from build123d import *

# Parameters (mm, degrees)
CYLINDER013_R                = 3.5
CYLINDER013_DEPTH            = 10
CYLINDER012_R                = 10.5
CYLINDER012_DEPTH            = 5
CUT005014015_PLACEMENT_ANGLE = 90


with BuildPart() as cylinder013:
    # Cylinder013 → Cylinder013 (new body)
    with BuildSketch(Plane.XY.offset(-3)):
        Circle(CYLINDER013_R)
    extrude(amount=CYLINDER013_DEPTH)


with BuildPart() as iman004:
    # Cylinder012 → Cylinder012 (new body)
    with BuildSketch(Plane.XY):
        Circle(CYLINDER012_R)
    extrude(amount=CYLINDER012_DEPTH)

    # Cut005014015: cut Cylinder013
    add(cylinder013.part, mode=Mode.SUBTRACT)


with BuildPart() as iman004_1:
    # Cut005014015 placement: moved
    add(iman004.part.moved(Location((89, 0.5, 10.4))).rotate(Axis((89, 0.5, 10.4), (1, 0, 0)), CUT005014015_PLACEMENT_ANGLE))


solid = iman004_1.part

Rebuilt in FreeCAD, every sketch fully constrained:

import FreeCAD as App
import Part
import Sketcher
from FreeCAD import Vector

doc = App.newDocument("Part")
body = doc.addObject("PartDesign::Body", "Body")

# Sketch on XY plane
sketch1 = body.newObject("Sketcher::SketchObject", "Sketch")
sketch1.AttachmentSupport = (doc.getObject("XY_Plane"), [""])
sketch1.MapMode = "FlatFace"
sketch1.AttachmentOffset = App.Placement(Vector(0, 0, -3), App.Rotation())
sketch1.addGeometry(Part.Circle(Vector(0, 0, 0), Vector(0, 0, 1), 3.5), False)
sketch1.addConstraint([
    Sketcher.Constraint("Coincident", 0, 3, -1, 1),
    Sketcher.Constraint("Diameter", 0, 7.0),
])
pad1 = body.newObject("PartDesign::Pad", "Pad")
pad1.Profile = sketch1
pad1.Length = 10
body2 = doc.addObject("PartDesign::Body", "Body001")

# Sketch on XY plane
sketch2 = body2.newObject("Sketcher::SketchObject", "Sketch001")
sketch2.AttachmentSupport = (doc.getObject("XY_Plane001"), [""])
sketch2.MapMode = "FlatFace"
sketch2.addGeometry(Part.Circle(Vector(0, 0, 0), Vector(0, 0, 1), 10.5), False)
sketch2.addConstraint([
    Sketcher.Constraint("Coincident", 0, 3, -1, 1),
    Sketcher.Constraint("Diameter", 0, 21.0),
])
pad2 = body2.newObject("PartDesign::Pad", "Pad001")
pad2.Profile = sketch2
pad2.Length = 5
doc.recompute()

boolean = body2.newObject("PartDesign::Boolean", "Boolean")
boolean.Type = "Cut"
boolean.addObjects([body])
body3 = doc.addObject("PartDesign::Body", "Body002")
doc.recompute()

body2.Placement = App.Placement(Vector(89, 0.5, 10.4), App.Rotation(Vector(1, 0, 0), 90))
boolean2 = body3.newObject("PartDesign::Boolean", "Boolean001")
boolean2.Type = "Fuse"
boolean2.addObjects([body2])

doc.recompute()
